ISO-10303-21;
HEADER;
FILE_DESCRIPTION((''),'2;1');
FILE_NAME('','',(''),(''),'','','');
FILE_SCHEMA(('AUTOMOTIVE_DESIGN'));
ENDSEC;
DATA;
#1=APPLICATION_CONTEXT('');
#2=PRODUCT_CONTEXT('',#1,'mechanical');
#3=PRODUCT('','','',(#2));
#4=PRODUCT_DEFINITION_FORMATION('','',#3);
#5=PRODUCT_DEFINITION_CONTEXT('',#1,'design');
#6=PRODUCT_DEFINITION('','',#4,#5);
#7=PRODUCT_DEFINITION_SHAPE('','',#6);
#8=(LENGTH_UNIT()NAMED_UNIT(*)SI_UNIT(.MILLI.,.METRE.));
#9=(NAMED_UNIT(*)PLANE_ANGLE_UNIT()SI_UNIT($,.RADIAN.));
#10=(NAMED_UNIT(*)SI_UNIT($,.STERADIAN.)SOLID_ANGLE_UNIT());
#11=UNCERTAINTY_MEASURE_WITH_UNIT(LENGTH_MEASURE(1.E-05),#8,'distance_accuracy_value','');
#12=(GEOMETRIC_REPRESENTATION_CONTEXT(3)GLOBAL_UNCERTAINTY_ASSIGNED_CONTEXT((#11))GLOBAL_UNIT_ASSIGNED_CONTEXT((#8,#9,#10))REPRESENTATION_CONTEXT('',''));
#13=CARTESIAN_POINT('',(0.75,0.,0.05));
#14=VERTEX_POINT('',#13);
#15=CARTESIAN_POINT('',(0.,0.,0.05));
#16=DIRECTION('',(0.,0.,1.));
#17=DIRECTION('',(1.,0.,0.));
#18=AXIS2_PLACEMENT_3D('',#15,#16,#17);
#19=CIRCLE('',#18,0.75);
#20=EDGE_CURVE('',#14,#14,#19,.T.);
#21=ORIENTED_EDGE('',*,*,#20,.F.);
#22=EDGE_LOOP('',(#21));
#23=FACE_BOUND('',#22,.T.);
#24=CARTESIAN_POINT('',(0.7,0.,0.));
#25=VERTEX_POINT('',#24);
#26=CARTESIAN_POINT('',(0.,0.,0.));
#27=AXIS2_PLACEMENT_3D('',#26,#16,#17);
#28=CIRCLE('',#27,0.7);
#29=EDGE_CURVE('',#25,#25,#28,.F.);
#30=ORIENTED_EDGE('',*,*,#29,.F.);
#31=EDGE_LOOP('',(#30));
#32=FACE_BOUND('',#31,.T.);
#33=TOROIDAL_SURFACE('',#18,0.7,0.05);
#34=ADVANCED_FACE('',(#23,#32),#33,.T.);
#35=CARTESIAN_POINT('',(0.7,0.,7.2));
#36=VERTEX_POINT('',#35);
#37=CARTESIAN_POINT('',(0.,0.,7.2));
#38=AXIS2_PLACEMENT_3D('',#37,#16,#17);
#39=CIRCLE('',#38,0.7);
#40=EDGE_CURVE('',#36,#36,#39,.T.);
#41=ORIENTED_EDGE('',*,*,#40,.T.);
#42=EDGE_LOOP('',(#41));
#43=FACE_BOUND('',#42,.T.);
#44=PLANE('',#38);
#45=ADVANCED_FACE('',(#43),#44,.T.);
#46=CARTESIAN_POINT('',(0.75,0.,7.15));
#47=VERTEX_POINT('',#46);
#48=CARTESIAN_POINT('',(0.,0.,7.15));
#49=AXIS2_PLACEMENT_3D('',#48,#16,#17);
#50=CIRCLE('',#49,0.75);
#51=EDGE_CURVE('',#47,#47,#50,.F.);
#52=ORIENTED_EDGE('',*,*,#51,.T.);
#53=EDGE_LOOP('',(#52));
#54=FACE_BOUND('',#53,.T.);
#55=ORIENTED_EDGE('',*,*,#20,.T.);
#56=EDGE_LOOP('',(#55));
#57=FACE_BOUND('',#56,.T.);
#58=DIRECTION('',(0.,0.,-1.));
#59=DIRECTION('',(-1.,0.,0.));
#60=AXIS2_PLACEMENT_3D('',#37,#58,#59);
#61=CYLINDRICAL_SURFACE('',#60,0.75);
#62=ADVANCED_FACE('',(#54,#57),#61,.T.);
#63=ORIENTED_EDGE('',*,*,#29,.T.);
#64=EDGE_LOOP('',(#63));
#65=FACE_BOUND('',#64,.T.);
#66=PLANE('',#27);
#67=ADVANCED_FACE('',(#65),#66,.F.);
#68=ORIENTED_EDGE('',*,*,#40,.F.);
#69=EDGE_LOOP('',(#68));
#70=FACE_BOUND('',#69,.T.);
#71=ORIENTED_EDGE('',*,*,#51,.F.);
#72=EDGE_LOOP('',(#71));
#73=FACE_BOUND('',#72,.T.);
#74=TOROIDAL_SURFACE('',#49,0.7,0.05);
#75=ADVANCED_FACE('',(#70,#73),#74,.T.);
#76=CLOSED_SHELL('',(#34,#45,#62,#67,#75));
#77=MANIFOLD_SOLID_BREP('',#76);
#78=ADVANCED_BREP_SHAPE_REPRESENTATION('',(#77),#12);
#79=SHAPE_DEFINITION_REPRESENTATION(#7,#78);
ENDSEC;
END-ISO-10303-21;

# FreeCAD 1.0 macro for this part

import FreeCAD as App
import Part
import Sketcher
from FreeCAD import Vector
Q = App.Units.Quantity


def edges_at(feature, points):
    """Names of the edges that pass closest to the given points."""
    edges = feature.Shape.Edges
    near = lambda p: min(range(len(edges)), key=lambda i: edges[i].distToShape(Part.Vertex(*p))[0])
    return sorted({f"Edge{near(p) + 1}" for p in points})

doc = App.newDocument("Part")
body = doc.addObject("PartDesign::Body", "Body")

# Sketch on XY plane
sketch1 = body.newObject("Sketcher::SketchObject", "Sketch")
sketch1.AttachmentSupport = (doc.getObject("XY_Plane"), [""])
sketch1.MapMode = "FlatFace"
sketch1.addGeometry(Part.Circle(Vector(0, 0, 0), Vector(0, 0, 1), 0.8), False)
sketch1.addConstraint(Sketcher.Constraint("Coincident", 0, 3, -1, 1))
sketch1.addConstraint(Sketcher.Constraint("Diameter", 0, Q("1.5 mm")))
pad1 = body.newObject("PartDesign::Pad", "Pad")
pad1.Profile = sketch1
pad1.Length = 7.2
doc.recompute()

fillet = body.newObject("PartDesign::Fillet", "Fillet")
fillet.Base = (pad1, edges_at(pad1, [(-0.75, 0, 0), (-0.75, 0, 7.2)]))
fillet.Radius = 0.05

doc.recompute()
